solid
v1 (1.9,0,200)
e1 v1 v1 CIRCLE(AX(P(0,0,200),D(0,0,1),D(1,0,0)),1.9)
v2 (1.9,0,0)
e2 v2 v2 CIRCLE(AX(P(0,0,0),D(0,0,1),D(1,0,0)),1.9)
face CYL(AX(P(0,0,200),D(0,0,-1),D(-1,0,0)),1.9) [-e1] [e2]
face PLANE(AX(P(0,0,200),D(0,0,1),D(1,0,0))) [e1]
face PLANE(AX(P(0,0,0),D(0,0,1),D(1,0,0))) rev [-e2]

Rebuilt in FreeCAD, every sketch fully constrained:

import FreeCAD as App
import Part
import Sketcher
from FreeCAD import Vector

doc = App.newDocument("Part")
params = doc.addObject("Spreadsheet::Sheet", "Params")
for row, (alias, value) in enumerate([
    ("sketch1_diameter", "3.8 mm"),
    ("pad1_length", "200 mm"),
], start=1):
    params.set(f"A{row}", alias)
    params.set(f"B{row}", "=" + value)
    params.setAlias(f"B{row}", alias)

body = doc.addObject("PartDesign::Body", "Body")

# Sketch on XY plane
sketch1 = doc.addObject("Sketcher::SketchObject", "Sketch")
body.addObject(sketch1)
sketch1.AttachmentSupport = (doc.XY_Plane, [""])
sketch1.MapMode = "FlatFace"
sketch1.addGeometry(Part.Circle(Vector(0, 0, 0), Vector(0, 0, 1), 1.9), False)
sketch1.addConstraint([
    Sketcher.Constraint("Coincident", 0, 3, -1, 1),
    Sketcher.Constraint("Diameter", 0, 3.8),
])
sketch1.setExpression("Constraints[1]", "Params.sketch1_diameter")
pad1 = doc.addObject("PartDesign::Pad", "Pad")
body.addObject(pad1)
pad1.Profile = sketch1
pad1.setExpression("Length", "Params.pad1_length")

doc.recompute()
